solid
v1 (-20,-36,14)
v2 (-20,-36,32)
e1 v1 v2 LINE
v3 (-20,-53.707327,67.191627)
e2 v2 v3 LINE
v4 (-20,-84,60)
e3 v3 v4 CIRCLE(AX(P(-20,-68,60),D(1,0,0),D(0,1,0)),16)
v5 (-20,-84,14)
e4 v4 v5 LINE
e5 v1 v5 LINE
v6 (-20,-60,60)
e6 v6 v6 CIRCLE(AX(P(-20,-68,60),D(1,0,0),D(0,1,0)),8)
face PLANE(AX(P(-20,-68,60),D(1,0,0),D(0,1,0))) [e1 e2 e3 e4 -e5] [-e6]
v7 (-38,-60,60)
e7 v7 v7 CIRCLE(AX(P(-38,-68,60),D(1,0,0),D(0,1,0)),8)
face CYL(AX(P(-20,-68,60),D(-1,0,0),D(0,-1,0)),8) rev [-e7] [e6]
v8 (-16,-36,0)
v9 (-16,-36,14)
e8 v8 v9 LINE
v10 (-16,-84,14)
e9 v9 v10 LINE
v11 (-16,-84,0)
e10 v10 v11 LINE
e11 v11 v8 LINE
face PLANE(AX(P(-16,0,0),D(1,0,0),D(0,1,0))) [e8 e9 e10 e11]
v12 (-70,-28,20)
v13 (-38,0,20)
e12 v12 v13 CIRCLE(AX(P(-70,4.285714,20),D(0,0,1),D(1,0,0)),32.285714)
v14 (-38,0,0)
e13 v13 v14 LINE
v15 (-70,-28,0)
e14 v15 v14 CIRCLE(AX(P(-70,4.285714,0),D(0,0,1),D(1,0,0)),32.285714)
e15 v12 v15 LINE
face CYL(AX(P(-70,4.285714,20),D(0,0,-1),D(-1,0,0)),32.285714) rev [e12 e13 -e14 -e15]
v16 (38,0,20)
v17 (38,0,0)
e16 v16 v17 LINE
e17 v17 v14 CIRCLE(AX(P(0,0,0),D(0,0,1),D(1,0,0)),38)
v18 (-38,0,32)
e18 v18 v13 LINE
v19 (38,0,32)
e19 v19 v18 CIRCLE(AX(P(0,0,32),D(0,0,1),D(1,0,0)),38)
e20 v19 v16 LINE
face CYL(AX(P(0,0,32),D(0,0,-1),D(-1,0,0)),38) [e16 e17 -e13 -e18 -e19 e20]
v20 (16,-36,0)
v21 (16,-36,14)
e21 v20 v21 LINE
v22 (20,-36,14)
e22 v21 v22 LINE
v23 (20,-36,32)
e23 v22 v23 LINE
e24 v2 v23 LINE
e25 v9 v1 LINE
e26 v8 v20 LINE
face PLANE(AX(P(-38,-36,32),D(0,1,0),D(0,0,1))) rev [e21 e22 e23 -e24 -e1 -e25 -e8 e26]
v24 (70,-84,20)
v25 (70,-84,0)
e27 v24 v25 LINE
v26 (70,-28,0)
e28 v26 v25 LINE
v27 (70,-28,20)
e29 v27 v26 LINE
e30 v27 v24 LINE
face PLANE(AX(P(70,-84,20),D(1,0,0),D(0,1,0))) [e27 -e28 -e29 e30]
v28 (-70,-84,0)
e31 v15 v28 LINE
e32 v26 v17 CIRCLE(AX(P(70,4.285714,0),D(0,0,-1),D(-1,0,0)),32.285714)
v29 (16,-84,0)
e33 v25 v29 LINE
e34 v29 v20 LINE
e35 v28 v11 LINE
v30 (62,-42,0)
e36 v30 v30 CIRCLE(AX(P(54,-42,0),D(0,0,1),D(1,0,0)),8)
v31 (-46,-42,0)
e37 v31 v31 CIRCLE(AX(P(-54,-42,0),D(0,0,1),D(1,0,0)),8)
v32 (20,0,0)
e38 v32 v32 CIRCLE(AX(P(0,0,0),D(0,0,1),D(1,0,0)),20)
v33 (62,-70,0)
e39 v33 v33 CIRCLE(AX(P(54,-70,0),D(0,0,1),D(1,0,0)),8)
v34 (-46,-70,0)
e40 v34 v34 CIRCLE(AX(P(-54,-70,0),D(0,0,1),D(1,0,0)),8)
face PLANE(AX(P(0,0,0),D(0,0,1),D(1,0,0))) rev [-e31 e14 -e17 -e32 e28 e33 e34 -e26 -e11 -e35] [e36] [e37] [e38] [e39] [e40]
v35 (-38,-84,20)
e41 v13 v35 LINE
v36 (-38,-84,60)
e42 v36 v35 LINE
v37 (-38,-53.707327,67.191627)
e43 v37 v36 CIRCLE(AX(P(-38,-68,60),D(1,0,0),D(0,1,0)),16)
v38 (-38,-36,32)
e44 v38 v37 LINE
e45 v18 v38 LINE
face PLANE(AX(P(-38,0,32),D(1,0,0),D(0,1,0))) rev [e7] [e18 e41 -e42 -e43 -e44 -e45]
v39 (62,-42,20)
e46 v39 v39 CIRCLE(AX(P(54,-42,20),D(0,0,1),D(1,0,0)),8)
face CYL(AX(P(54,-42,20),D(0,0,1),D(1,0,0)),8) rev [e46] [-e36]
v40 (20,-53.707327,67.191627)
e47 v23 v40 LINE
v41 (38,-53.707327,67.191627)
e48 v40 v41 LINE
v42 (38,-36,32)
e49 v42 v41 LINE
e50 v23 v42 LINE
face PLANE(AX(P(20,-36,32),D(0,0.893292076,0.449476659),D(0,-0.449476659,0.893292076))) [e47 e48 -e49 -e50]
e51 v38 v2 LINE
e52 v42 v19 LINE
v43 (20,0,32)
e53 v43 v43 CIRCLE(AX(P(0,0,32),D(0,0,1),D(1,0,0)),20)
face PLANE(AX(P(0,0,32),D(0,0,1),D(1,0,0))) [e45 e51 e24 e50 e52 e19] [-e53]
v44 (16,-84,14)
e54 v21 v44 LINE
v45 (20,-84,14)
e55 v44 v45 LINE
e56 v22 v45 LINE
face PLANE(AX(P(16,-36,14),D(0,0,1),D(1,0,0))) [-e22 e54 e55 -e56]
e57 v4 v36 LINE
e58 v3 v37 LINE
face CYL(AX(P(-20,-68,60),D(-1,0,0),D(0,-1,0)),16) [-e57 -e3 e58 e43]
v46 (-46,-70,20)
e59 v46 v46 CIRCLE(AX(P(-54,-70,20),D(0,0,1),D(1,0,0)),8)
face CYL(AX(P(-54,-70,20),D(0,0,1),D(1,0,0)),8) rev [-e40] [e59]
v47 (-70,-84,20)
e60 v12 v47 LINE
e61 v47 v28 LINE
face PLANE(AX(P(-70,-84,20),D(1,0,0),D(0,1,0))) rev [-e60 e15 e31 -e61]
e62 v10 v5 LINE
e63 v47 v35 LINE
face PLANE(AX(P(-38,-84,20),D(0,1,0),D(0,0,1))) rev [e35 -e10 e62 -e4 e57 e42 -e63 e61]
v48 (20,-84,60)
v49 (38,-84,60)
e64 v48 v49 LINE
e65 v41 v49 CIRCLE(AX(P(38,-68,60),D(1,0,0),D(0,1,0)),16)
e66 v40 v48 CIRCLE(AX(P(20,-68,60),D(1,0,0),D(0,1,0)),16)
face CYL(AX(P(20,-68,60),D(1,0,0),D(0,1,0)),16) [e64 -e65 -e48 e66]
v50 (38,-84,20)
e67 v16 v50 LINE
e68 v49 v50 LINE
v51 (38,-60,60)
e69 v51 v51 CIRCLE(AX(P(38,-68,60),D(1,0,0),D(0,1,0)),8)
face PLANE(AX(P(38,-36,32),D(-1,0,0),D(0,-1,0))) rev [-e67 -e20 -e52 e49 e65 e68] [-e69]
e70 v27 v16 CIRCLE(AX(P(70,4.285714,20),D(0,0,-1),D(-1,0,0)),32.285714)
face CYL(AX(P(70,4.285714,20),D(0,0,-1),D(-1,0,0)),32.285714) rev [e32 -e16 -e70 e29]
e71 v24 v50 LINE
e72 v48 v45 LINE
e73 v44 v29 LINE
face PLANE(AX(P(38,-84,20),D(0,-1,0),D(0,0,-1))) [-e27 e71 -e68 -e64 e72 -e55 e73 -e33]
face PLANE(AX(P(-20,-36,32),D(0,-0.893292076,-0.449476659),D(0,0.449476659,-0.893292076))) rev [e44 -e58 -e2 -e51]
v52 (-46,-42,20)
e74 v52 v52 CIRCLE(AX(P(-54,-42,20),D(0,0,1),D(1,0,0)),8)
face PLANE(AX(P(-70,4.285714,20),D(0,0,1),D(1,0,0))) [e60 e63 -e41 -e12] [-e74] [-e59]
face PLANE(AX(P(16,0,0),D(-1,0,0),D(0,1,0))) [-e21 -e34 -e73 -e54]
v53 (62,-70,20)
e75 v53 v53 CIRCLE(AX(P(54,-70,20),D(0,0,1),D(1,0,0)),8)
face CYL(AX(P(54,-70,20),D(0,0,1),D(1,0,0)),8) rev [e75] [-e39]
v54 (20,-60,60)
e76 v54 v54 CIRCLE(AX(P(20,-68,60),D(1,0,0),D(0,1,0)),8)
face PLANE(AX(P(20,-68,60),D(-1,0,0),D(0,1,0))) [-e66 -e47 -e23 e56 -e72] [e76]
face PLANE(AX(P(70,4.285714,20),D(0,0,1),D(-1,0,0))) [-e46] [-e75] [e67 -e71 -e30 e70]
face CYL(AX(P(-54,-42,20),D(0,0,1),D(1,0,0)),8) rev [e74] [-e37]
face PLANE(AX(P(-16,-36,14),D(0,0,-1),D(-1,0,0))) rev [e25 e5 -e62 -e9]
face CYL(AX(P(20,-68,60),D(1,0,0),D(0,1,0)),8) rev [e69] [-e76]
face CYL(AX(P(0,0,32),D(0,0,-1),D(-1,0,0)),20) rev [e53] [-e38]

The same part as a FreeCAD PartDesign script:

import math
import FreeCAD as App
import Part
import Sketcher
Q = App.Units.Quantity


def add_polygon(sketch, points):
    """Adds a closed chain of lines whose ends are joined by coincident constraints."""
    first, n = sketch.GeometryCount, len(points)
    for a, b in zip(points, points[1:] + points[:1]):
        sketch.addGeometry(Part.LineSegment(App.Vector(*a, 0), App.Vector(*b, 0)), False)
    for i in range(n):
        sketch.addConstraint(Sketcher.Constraint("Coincident", first + i, 2, first + (i + 1) % n, 1))

doc = App.newDocument("Part")
body = doc.addObject("PartDesign::Body", "Body")

# Sketch on XY plane
sketch1 = body.newObject("Sketcher::SketchObject", "Sketch")
sketch1.AttachmentSupport = (doc.getObject("XY_Plane"), [""])
sketch1.MapMode = "FlatFace"
sketch1.addGeometry([
    Part.LineSegment(App.Vector(-38, 0, 0), App.Vector(-38, -36, 0)),  # 0
    Part.LineSegment(App.Vector(-38, -36, 0), App.Vector(38, -36, 0)),  # 1
    Part.LineSegment(App.Vector(38, -36, 0), App.Vector(38, 0, 0)),  # 2
    Part.ArcOfCircle(Part.Circle(App.Vector(0, 0, 0), App.Vector(0, 0, 1), 38), math.radians(0), math.radians(180)),  # 3
    Part.Circle(App.Vector(0, 0, 0), App.Vector(0, 0, 1), 20),  # 4
], False)
sketch1.addConstraint([
    Sketcher.Constraint("Coincident", 0, 2, 1, 1),
    Sketcher.Constraint("Coincident", 1, 2, 2, 1),
    Sketcher.Constraint("Tangent", 2, 2, 3, 1),
    Sketcher.Constraint("Tangent", 3, 2, 0, 1),
    Sketcher.Constraint("Vertical", 0),
    Sketcher.Constraint("Horizontal", 1),
    Sketcher.Constraint("Vertical", 2),
    Sketcher.Constraint("Coincident", 3, 3, -1, 1),
    Sketcher.Constraint("Coincident", 4, 3, -1, 1),
    Sketcher.Constraint("Diameter", 4, Q("40 mm")),
    Sketcher.Constraint("Radius", 3, Q("38 mm")),
    Sketcher.Constraint("DistanceY", 0, 2, 0, 1, Q("36 mm")),
])
pad1 = body.newObject("PartDesign::Pad", "Pad")
pad1.Profile = sketch1
pad1.Length = 32

# Sketch on XY plane
sketch2 = body.newObject("Sketcher::SketchObject", "Sketch001")
sketch2.AttachmentSupport = (doc.getObject("XY_Plane"), [""])
sketch2.MapMode = "FlatFace"
sketch2.addGeometry([
    Part.LineSegment(App.Vector(-70, -28, 0), App.Vector(-38, -28, 0)),
    Part.LineSegment(App.Vector(-38, -28, 0), App.Vector(-38, 0, 0)),
    Part.ArcOfCircle(Part.Circle(App.Vector(-70, 4, 0), App.Vector(0, 0, 1), 32), math.radians(-90), math.radians(-8)),
], False)
sketch2.addConstraint([
    Sketcher.Constraint("Coincident", 0, 2, 1, 1),
    Sketcher.Constraint("Coincident", 1, 2, 2, 2),
    Sketcher.Constraint("Tangent", 2, 1, 0, 1),
    Sketcher.Constraint("Horizontal", 0),
    Sketcher.Constraint("Vertical", 1),
    Sketcher.Constraint("PointOnObject", 1, 2, -1),
    Sketcher.Constraint("DistanceX", 0, 1, 0, 2, Q("32 mm")),
    Sketcher.Constraint("DistanceY", 1, 1, 1, 2, Q("28 mm")),
    Sketcher.Constraint("DistanceX", 2, 3, -1, 1, Q("70 mm")),
])
pad2 = body.newObject("PartDesign::Pad", "Pad001")
pad2.Profile = sketch2
pad2.Length = 20

# Sketch on XY plane
sketch3 = body.newObject("Sketcher::SketchObject", "Sketch002")
sketch3.AttachmentSupport = (doc.getObject("XY_Plane"), [""])
sketch3.MapMode = "FlatFace"
add_polygon(sketch3, [(-70, -28), (-70, -84), (-38, -84), (-38, -28)])  # lines 0-3
sketch3.addConstraint([
    Sketcher.Constraint("Vertical", 0),
    Sketcher.Constraint("Horizontal", 1),
    Sketcher.Constraint("Vertical", 2),
    Sketcher.Constraint("Horizontal", 3),
    Sketcher.Constraint("DistanceX", 1, 1, 1, 2, Q("32 mm")),
    Sketcher.Constraint("DistanceY", 0, 2, 0, 1, Q("56 mm")),
    Sketcher.Constraint("DistanceX", 0, 2, -1, 1, Q("70 mm")),
    Sketcher.Constraint("DistanceY", 0, 2, -1, 1, Q("84 mm")),
])
pad3 = body.newObject("PartDesign::Pad", "Pad002")
pad3.Profile = sketch3
pad3.Length = 20

# Sketch on XY plane
sketch4 = body.newObject("Sketcher::SketchObject", "Sketch003")
sketch4.AttachmentSupport = (doc.getObject("XY_Plane"), [""])
sketch4.MapMode = "FlatFace"
sketch4.AttachmentOffset = App.Placement(App.Vector(0, 0, 20), App.Rotation())
sketch4.addGeometry(Part.Circle(App.Vector(-54, -42, 0), App.Vector(0, 0, 1), 8), False)
sketch4.addConstraint([
    Sketcher.Constraint("Diameter", 0, Q("16 mm")),
    Sketcher.Constraint("DistanceX", 0, 3, -1, 1, Q("54 mm")),
    Sketcher.Constraint("DistanceY", 0, 3, -1, 1, Q("42 mm")),
])
doc.recompute()
hole = body.newObject("PartDesign::Hole", "Hole")
hole.Profile = sketch4
hole.ThreadType = "None"
hole.Diameter = 16
hole.DepthType = "ThroughAll"
doc.recompute()

linearpattern = body.newObject("PartDesign::LinearPattern", "LinearPattern")
linearpattern.Originals = [hole]
linearpattern.Direction = (doc.getObject("Y_Axis"), [""])
linearpattern.Mode = "offset"
linearpattern.Offset = 28
linearpattern.Occurrences = 2
linearpattern.Reversed = True
body.Tip = linearpattern
doc.recompute()

mirrored = body.newObject("PartDesign::Mirrored", "Mirrored")
mirrored.Originals = [pad3, pad2, hole]
mirrored.MirrorPlane = (doc.getObject("YZ_Plane"), [""])
body.Tip = mirrored

# Sketch on XY plane
sketch5 = body.newObject("Sketcher::SketchObject", "Sketch004")
sketch5.AttachmentSupport = (doc.getObject("XY_Plane"), [""])
sketch5.MapMode = "FlatFace"
sketch5.AttachmentOffset = App.Placement(App.Vector(0, 0, 20), App.Rotation())
sketch5.addGeometry(Part.Circle(App.Vector(54, -70, 0), App.Vector(0, 0, 1), 8), False)
sketch5.addConstraint([
    Sketcher.Constraint("Diameter", 0, Q("16 mm")),
    Sketcher.Constraint("DistanceX", -1, 1, 0, 3, Q("54 mm")),
    Sketcher.Constraint("DistanceY", 0, 3, -1, 1, Q("70 mm")),
])
doc.recompute()
hole2 = body.newObject("PartDesign::Hole", "Hole001")
hole2.Profile = sketch5
hole2.ThreadType = "None"
hole2.Diameter = 16
hole2.DepthType = "ThroughAll"

# Sketch on YZ plane
sketch6 = body.newObject("Sketcher::SketchObject", "Sketch005")
sketch6.AttachmentSupport = (doc.getObject("YZ_Plane"), [""])
sketch6.MapMode = "FlatFace"
sketch6.AttachmentOffset = App.Placement(App.Vector(0, 0, -38), App.Rotation())
sketch6.addGeometry([
    Part.LineSegment(App.Vector(-84, 60, 0), App.Vector(-84, 0, 0)),  # 0
    Part.LineSegment(App.Vector(-84, 0, 0), App.Vector(-36, 0, 0)),  # 1
    Part.LineSegment(App.Vector(-36, 0, 0), App.Vector(-36, 32, 0)),  # 2
    Part.LineSegment(App.Vector(-36, 32, 0), App.Vector(-54, 67, 0)),  # 3
    Part.ArcOfCircle(Part.Circle(App.Vector(-68, 60, 0), App.Vector(0, 0, 1), 16), math.radians(27), math.radians(180)),  # 4
    Part.Circle(App.Vector(-68, 60, 0), App.Vector(0, 0, 1), 8),  # 5
], False)
sketch6.addConstraint([
    Sketcher.Constraint("Coincident", 0, 2, 1, 1),
    Sketcher.Constraint("Coincident", 1, 2, 2, 1),
    Sketcher.Constraint("Coincident", 2, 2, 3, 1),
    Sketcher.Constraint("Tangent", 3, 2, 4, 1),
    Sketcher.Constraint("Tangent", 4, 2, 0, 1),
    Sketcher.Constraint("Vertical", 0),
    Sketcher.Constraint("Horizontal", 1),
    Sketcher.Constraint("Vertical", 2),
    Sketcher.Constraint("Coincident", 5, 3, 4, 3),
    Sketcher.Constraint("PointOnObject", 0, 2, -1),
    Sketcher.Constraint("Diameter", 5, Q("16 mm")),
    Sketcher.Constraint("Radius", 4, Q("16 mm")),
    Sketcher.Constraint("DistanceX", 1, 1, 1, 2, Q("48 mm")),
    Sketcher.Constraint("DistanceY", 0, 2, 0, 1, Q("60 mm")),
    Sketcher.Constraint("DistanceY", 2, 1, 2, 2, Q("32 mm")),
    Sketcher.Constraint("DistanceX", 4, 3, -1, 1, Q("68 mm")),
])
pad4 = body.newObject("PartDesign::Pad", "Pad003")
pad4.Profile = sketch6
pad4.Length = 18

# Sketch on YZ plane
sketch7 = body.newObject("Sketcher::SketchObject", "Sketch006")
sketch7.AttachmentSupport = (doc.getObject("YZ_Plane"), [""])
sketch7.MapMode = "FlatFace"
sketch7.AttachmentOffset = App.Placement(App.Vector(0, 0, -20), App.Rotation())
add_polygon(sketch7, [(-36, 14), (-84, 14), (-84, 0), (-36, 0)])  # lines 0-3
sketch7.addConstraint([
    Sketcher.Constraint("Horizontal", 0),
    Sketcher.Constraint("Vertical", 1),
    Sketcher.Constraint("Horizontal", 2),
    Sketcher.Constraint("Vertical", 3),
    Sketcher.Constraint("PointOnObject", 1, 2, -1),
    Sketcher.Constraint("DistanceX", 0, 2, 0, 1, Q("48 mm")),
    Sketcher.Constraint("DistanceY", 1, 2, 1, 1, Q("14 mm")),
    Sketcher.Constraint("DistanceX", 0, 2, -1, 1, Q("84 mm")),
])
pad5 = body.newObject("PartDesign::Pad", "Pad004")
pad5.Profile = sketch7
pad5.Length = 4
doc.recompute()

mirrored2 = body.newObject("PartDesign::Mirrored", "Mirrored001")
mirrored2.Originals = [pad4, pad5]
mirrored2.MirrorPlane = (doc.getObject("YZ_Plane"), [""])
body.Tip = mirrored2

doc.recompute()
